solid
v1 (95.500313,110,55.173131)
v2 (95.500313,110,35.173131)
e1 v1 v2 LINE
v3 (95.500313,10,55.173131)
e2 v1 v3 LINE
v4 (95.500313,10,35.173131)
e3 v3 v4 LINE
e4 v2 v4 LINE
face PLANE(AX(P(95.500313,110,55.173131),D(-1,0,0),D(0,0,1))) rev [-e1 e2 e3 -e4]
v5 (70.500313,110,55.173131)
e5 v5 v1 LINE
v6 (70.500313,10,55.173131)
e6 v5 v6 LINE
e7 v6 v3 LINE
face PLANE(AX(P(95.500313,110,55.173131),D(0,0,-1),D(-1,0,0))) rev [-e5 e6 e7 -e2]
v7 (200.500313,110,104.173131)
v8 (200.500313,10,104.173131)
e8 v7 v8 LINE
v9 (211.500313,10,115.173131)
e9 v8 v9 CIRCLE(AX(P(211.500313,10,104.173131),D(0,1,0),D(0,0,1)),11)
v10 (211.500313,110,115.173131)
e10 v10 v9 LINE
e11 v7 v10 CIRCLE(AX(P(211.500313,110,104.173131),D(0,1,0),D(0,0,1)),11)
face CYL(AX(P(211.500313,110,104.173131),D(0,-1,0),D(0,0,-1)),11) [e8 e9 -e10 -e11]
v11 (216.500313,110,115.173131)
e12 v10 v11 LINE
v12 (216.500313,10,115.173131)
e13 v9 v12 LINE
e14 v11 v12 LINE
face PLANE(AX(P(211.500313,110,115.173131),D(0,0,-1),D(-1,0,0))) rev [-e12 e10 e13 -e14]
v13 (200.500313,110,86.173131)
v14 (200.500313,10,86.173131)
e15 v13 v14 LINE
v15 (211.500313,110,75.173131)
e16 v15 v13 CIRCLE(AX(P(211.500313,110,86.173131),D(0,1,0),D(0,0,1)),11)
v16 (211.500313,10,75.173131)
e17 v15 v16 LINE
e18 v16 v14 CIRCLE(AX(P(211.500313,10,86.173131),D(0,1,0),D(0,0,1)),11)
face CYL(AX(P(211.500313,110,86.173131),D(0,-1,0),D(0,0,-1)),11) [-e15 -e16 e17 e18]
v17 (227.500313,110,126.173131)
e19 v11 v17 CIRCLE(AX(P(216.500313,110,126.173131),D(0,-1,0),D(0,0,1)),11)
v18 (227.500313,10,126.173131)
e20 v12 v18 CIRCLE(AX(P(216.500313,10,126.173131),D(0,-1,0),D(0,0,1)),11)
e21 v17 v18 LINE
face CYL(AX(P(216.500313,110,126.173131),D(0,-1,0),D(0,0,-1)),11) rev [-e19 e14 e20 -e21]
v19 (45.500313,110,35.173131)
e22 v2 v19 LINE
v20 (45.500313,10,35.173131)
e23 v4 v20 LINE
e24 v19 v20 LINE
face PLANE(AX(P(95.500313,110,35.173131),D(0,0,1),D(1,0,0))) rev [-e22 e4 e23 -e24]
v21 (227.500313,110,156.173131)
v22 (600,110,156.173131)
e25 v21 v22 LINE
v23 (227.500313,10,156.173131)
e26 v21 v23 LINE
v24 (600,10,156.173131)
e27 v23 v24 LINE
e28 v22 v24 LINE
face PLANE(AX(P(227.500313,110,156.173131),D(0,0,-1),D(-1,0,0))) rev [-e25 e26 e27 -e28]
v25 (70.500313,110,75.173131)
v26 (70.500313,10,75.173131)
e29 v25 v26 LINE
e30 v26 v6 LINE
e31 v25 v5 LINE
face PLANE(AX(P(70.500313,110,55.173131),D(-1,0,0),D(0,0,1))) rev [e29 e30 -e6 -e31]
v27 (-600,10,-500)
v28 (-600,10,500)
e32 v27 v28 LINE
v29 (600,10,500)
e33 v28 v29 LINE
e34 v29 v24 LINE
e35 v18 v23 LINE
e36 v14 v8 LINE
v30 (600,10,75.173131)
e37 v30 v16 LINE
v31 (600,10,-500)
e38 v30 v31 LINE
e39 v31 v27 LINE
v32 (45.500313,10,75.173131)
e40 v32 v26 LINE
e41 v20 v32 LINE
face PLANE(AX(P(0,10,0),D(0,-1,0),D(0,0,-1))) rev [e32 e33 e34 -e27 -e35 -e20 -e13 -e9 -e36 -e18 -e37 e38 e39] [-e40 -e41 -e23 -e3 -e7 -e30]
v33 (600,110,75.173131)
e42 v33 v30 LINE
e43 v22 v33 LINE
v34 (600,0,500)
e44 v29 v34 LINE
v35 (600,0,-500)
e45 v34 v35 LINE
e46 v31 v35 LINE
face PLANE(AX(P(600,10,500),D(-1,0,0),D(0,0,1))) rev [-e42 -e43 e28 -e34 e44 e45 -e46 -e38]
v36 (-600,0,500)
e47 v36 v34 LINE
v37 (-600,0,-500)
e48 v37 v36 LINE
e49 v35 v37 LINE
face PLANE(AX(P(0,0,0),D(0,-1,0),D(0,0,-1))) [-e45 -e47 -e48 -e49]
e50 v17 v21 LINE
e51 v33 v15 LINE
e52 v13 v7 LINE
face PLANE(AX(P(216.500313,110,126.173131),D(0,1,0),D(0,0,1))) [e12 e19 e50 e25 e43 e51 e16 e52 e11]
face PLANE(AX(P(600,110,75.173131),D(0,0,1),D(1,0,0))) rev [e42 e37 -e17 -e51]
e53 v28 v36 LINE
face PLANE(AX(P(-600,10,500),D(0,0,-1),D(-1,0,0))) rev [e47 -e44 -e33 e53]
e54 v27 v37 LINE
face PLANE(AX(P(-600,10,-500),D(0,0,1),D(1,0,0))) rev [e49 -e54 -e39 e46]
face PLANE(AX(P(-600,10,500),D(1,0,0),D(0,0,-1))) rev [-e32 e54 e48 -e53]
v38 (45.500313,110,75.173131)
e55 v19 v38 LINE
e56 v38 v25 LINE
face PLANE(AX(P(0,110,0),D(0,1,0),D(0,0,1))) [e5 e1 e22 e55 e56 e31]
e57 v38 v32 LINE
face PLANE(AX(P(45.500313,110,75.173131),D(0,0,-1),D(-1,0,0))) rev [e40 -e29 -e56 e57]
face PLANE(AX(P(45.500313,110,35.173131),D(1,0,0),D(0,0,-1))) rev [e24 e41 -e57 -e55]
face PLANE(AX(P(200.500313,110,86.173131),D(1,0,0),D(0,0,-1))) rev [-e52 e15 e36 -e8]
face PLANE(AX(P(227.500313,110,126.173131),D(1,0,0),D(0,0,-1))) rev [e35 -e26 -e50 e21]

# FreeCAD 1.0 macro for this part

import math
import FreeCAD as App
import Part
import Sketcher

V = App.Vector

doc = App.newDocument("Part")
body = doc.addObject("PartDesign::Body", "Body")

# Sketch on XZ plane
sketch1 = body.newObject("Sketcher::SketchObject", "Sketch")
sketch1.AttachmentSupport = (doc.getObject("XZ_Plane"), [""])
sketch1.MapMode = "FlatFace"
sketch1.addGeometry(Part.LineSegment(V(-600, -500, 0), V(-600, 500, 0)), False)
sketch1.addGeometry(Part.LineSegment(V(-600, 500, 0), V(600, 500, 0)), False)
sketch1.addGeometry(Part.LineSegment(V(600, 500, 0), V(600, -500, 0)), False)
sketch1.addGeometry(Part.LineSegment(V(600, -500, 0), V(-600, -500, 0)), False)
sketch1.addConstraint(Sketcher.Constraint("Coincident", 0, 2, 1, 1))
sketch1.addConstraint(Sketcher.Constraint("Coincident", 1, 2, 2, 1))
sketch1.addConstraint(Sketcher.Constraint("Coincident", 2, 2, 3, 1))
sketch1.addConstraint(Sketcher.Constraint("Coincident", 3, 2, 0, 1))
sketch1.addConstraint(Sketcher.Constraint("Vertical", 0))
sketch1.addConstraint(Sketcher.Constraint("Horizontal", 1))
sketch1.addConstraint(Sketcher.Constraint("Vertical", 2))
sketch1.addConstraint(Sketcher.Constraint("Horizontal", 3))
sketch1.addConstraint(Sketcher.Constraint("Symmetric", 0, 2, 2, 2, -1, 1))
sketch1.addConstraint(Sketcher.Constraint("DistanceX", 1, 1, 1, 2, 1200.0))
sketch1.addConstraint(Sketcher.Constraint("DistanceY", 0, 1, 0, 2, 1000.0))
pad1 = body.newObject("PartDesign::Pad", "Pad")
pad1.Profile = sketch1
pad1.Length = 10
pad1.Reversed = True

# Sketch on XZ plane
sketch2 = body.newObject("Sketcher::SketchObject", "Sketch001")
sketch2.AttachmentSupport = (doc.getObject("XZ_Plane"), [""])
sketch2.MapMode = "FlatFace"
sketch2.AttachmentOffset = App.Placement(V(0, 0, -10), App.Rotation())
sketch2.addGeometry(Part.LineSegment(V(212, 115, 0), V(217, 115, 0)), False)
sketch2.addGeometry(Part.ArcOfCircle(Part.Circle(V(217, 126, 0), V(0, 0, 1), 11), math.radians(-90), math.radians(0)), False)
sketch2.addGeometry(Part.LineSegment(V(228, 126, 0), V(228, 156, 0)), False)
sketch2.addGeometry(Part.LineSegment(V(228, 156, 0), V(600, 156, 0)), False)
sketch2.addGeometry(Part.LineSegment(V(600, 156, 0), V(600, 75, 0)), False)
sketch2.addGeometry(Part.LineSegment(V(600, 75, 0), V(212, 75, 0)), False)
sketch2.addGeometry(Part.ArcOfCircle(Part.Circle(V(212, 86, 0), V(0, 0, 1), 11), math.radians(180), math.radians(270)), False)
sketch2.addGeometry(Part.LineSegment(V(201, 86, 0), V(201, 104, 0)), False)
sketch2.addGeometry(Part.ArcOfCircle(Part.Circle(V(212, 104, 0), V(0, 0, 1), 11), math.radians(90), math.radians(180)), False)
sketch2.addConstraint(Sketcher.Constraint("Tangent", 0, 2, 1, 1))
sketch2.addConstraint(Sketcher.Constraint("Tangent", 1, 2, 2, 1))
sketch2.addConstraint(Sketcher.Constraint("Coincident", 2, 2, 3, 1))
sketch2.addConstraint(Sketcher.Constraint("Coincident", 3, 2, 4, 1))
sketch2.addConstraint(Sketcher.Constraint("Coincident", 4, 2, 5, 1))
sketch2.addConstraint(Sketcher.Constraint("Tangent", 5, 2, 6, 2))
sketch2.addConstraint(Sketcher.Constraint("Tangent", 6, 1, 7, 1))
sketch2.addConstraint(Sketcher.Constraint("Tangent", 7, 2, 8, 2))
sketch2.addConstraint(Sketcher.Constraint("Tangent", 8, 1, 0, 1))
sketch2.addConstraint(Sketcher.Constraint("Horizontal", 0))
sketch2.addConstraint(Sketcher.Constraint("Vertical", 2))
sketch2.addConstraint(Sketcher.Constraint("Horizontal", 3))
sketch2.addConstraint(Sketcher.Constraint("Vertical", 4))
sketch2.addConstraint(Sketcher.Constraint("Horizontal", 5))
sketch2.addConstraint(Sketcher.Constraint("Vertical", 7))
sketch2.addConstraint(Sketcher.Constraint("Equal", 1, 6))
sketch2.addConstraint(Sketcher.Constraint("Equal", 6, 8))
sketch2.addConstraint(Sketcher.Constraint("Radius", 1, 11.0))
sketch2.addConstraint(Sketcher.Constraint("DistanceX", 0, 1, 0, 2, 5.0))
sketch2.addConstraint(Sketcher.Constraint("DistanceY", 2, 1, 2, 2, 30.0))
sketch2.addConstraint(Sketcher.Constraint("DistanceY", 4, 2, 4, 1, 81.0))
sketch2.addConstraint(Sketcher.Constraint("DistanceX", -1, 1, 3, 2, 600.0))
sketch2.addConstraint(Sketcher.Constraint("DistanceX", 3, 1, 3, 2, 372.499687))
sketch2.addConstraint(Sketcher.Constraint("DistanceY", -1, 1, 1, 3, 126.173131))
pad2 = body.newObject("PartDesign::Pad", "Pad001")
pad2.Profile = sketch2
pad2.Length = 100
pad2.Reversed = True

# Sketch on XZ plane
sketch3 = body.newObject("Sketcher::SketchObject", "Sketch002")
sketch3.AttachmentSupport = (doc.getObject("XZ_Plane"), [""])
sketch3.MapMode = "FlatFace"
sketch3.AttachmentOffset = App.Placement(V(0, 0, -10), App.Rotation())
sketch3.addGeometry(Part.LineSegment(V(96, 55, 0), V(96, 35, 0)), False)
sketch3.addGeometry(Part.LineSegment(V(96, 35, 0), V(46, 35, 0)), False)
sketch3.addGeometry(Part.LineSegment(V(46, 35, 0), V(46, 75, 0)), False)
sketch3.addGeometry(Part.LineSegment(V(46, 75, 0), V(71, 75, 0)), False)
sketch3.addGeometry(Part.LineSegment(V(71, 75, 0), V(71, 55, 0)), False)
sketch3.addGeometry(Part.LineSegment(V(71, 55, 0), V(96, 55, 0)), False)
sketch3.addConstraint(Sketcher.Constraint("Coincident", 0, 2, 1, 1))
sketch3.addConstraint(Sketcher.Constraint("Coincident", 1, 2, 2, 1))
sketch3.addConstraint(Sketcher.Constraint("Coincident", 2, 2, 3, 1))
sketch3.addConstraint(Sketcher.Constraint("Coincident", 3, 2, 4, 1))
sketch3.addConstraint(Sketcher.Constraint("Coincident", 4, 2, 5, 1))
sketch3.addConstraint(Sketcher.Constraint("Coincident", 5, 2, 0, 1))
sketch3.addConstraint(Sketcher.Constraint("Vertical", 0))
sketch3.addConstraint(Sketcher.Constraint("Horizontal", 1))
sketch3.addConstraint(Sketcher.Constraint("Vertical", 2))
sketch3.addConstraint(Sketcher.Constraint("Horizontal", 3))
sketch3.addConstraint(Sketcher.Constraint("Vertical", 4))
sketch3.addConstraint(Sketcher.Constraint("Horizontal", 5))
sketch3.addConstraint(Sketcher.Constraint("Equal", 3, 5))
sketch3.addConstraint(Sketcher.Constraint("Equal", 0, 4))
sketch3.addConstraint(Sketcher.Constraint("DistanceX", 1, 2, 1, 1, 50.0))
sketch3.addConstraint(Sketcher.Constraint("DistanceY", 0, 2, 0, 1, 20.0))
sketch3.addConstraint(Sketcher.Constraint("DistanceY", -1, 1, 0, 2, 35.173131))
sketch3.addConstraint(Sketcher.Constraint("DistanceX", -1, 1, 0, 2, 95.500313))
pad3 = body.newObject("PartDesign::Pad", "Pad002")
pad3.Profile = sketch3
pad3.Length = 100
pad3.Reversed = True

doc.recompute()
